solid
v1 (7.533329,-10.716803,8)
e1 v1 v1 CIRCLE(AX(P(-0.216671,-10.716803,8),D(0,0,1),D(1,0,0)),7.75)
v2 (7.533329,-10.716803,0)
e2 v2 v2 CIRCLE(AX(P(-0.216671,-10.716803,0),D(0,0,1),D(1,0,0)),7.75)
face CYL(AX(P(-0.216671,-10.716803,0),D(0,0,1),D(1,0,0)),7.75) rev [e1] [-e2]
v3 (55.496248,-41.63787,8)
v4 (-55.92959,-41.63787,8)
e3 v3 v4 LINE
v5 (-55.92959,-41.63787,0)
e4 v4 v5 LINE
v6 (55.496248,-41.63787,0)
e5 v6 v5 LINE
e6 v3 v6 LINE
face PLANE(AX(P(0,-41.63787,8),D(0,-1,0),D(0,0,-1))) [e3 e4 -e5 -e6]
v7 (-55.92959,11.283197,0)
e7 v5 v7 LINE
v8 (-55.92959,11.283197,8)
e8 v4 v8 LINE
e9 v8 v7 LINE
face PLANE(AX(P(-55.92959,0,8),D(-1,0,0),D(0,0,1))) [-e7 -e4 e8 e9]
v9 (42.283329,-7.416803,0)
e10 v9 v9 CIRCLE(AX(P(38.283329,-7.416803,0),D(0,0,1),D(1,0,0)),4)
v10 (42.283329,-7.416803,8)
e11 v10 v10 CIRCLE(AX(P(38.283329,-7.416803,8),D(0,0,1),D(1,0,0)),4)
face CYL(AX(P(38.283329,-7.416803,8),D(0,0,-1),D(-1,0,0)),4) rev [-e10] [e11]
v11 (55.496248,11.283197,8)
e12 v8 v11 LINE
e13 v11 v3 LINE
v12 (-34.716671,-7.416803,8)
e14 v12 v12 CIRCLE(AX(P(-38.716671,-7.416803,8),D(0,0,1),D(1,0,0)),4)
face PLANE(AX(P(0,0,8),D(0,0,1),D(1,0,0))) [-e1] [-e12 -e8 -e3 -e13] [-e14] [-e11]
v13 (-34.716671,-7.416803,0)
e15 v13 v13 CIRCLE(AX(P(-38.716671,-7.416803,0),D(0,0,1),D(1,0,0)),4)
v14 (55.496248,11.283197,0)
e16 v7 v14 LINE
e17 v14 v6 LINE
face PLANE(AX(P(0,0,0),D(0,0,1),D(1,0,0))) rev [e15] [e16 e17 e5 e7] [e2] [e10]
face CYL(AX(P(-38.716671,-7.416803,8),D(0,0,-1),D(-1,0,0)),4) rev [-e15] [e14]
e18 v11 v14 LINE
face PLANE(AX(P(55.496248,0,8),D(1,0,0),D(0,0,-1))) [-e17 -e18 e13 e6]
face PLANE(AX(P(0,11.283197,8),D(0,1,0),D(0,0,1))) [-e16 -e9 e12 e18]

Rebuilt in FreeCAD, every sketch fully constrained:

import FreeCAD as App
import Part
import Sketcher
from FreeCAD import Vector


def add_polygon(sketch, points):
    """Adds a closed chain of lines whose ends are joined by coincident constraints."""
    first, n = sketch.GeometryCount, len(points)
    for a, b in zip(points, points[1:] + points[:1]):
        sketch.addGeometry(Part.LineSegment(App.Vector(*a, 0), App.Vector(*b, 0)), False)
    for i in range(n):
        sketch.addConstraint(Sketcher.Constraint("Coincident", first + i, 2, first + (i + 1) % n, 1))

doc = App.newDocument("Part")
body = doc.addObject("PartDesign::Body", "Body")

# Sketch on XY plane
sketch1 = body.newObject("Sketcher::SketchObject", "Sketch")
sketch1.AttachmentSupport = (doc.getObject("XY_Plane"), [""])
sketch1.MapMode = "FlatFace"
add_polygon(sketch1, [(55.5, 11.3), (-55.9, 11.3), (-55.9, -41.6), (55.5, -41.6)])  # lines 0-3
sketch1.addGeometry(Part.Circle(Vector(-0.2, -10.7, 0), Vector(0, 0, 1), 5), False)  # 4
sketch1.addGeometry(Part.Circle(Vector(38.3, -7.4, 0), Vector(0, 0, 1), 4), False)  # 5
sketch1.addGeometry(Part.Circle(Vector(-38.7, -7.4, 0), Vector(0, 0, 1), 4), False)  # 6
sketch1.addConstraint([
    Sketcher.Constraint("Horizontal", 0),
    Sketcher.Constraint("Vertical", 1),
    Sketcher.Constraint("Horizontal", 2),
    Sketcher.Constraint("Vertical", 3),
    Sketcher.Constraint("Equal", 5, 6),
    Sketcher.Constraint("Horizontal", 5, 3, 6, 3),
    Sketcher.Constraint("Diameter", 4, 10.0),
    Sketcher.Constraint("Diameter", 5, 8.0),
    Sketcher.Constraint("DistanceX", 6, 3, 5, 3, 77.0),
    Sketcher.Constraint("DistanceY", 4, 3, 0, 2, 22.0),
    Sketcher.Constraint("DistanceX", 4, 3, 5, 3, 38.5),
    Sketcher.Constraint("DistanceY", 4, 3, 5, 3, 3.3),
    Sketcher.Constraint("DistanceX", 0, 2, 0, 1, 111.425838),
    Sketcher.Constraint("DistanceY", 1, 2, 1, 1, 52.921067),
    Sketcher.Constraint("DistanceX", 4, 3, -1, 1, 0.216671),
    Sketcher.Constraint("DistanceX", 0, 2, -1, 1, 55.92959),
    Sketcher.Constraint("DistanceY", 1, 2, -1, 1, 41.63787),
])
pad1 = body.newObject("PartDesign::Pad", "Pad")
pad1.Profile = sketch1
pad1.Length = 8

# Sketch on XY plane
sketch2 = body.newObject("Sketcher::SketchObject", "Sketch001")
sketch2.AttachmentSupport = (doc.getObject("XY_Plane"), [""])
sketch2.MapMode = "FlatFace"
sketch2.AttachmentOffset = App.Placement(Vector(0, 0, 8), App.Rotation())
sketch2.addGeometry(Part.Circle(Vector(0, -11, 0), Vector(0, 0, 1), 8), False)
sketch2.addConstraint([
    Sketcher.Constraint("Diameter", 0, 15.5),
    Sketcher.Constraint("DistanceX", 0, 3, -1, 1, 0.216671),
    Sketcher.Constraint("DistanceY", 0, 3, -1, 1, 10.716803),
])
pocket1 = body.newObject("PartDesign::Pocket", "Pocket")
pocket1.Profile = sketch2
pocket1.Type = "ThroughAll"

doc.recompute()
